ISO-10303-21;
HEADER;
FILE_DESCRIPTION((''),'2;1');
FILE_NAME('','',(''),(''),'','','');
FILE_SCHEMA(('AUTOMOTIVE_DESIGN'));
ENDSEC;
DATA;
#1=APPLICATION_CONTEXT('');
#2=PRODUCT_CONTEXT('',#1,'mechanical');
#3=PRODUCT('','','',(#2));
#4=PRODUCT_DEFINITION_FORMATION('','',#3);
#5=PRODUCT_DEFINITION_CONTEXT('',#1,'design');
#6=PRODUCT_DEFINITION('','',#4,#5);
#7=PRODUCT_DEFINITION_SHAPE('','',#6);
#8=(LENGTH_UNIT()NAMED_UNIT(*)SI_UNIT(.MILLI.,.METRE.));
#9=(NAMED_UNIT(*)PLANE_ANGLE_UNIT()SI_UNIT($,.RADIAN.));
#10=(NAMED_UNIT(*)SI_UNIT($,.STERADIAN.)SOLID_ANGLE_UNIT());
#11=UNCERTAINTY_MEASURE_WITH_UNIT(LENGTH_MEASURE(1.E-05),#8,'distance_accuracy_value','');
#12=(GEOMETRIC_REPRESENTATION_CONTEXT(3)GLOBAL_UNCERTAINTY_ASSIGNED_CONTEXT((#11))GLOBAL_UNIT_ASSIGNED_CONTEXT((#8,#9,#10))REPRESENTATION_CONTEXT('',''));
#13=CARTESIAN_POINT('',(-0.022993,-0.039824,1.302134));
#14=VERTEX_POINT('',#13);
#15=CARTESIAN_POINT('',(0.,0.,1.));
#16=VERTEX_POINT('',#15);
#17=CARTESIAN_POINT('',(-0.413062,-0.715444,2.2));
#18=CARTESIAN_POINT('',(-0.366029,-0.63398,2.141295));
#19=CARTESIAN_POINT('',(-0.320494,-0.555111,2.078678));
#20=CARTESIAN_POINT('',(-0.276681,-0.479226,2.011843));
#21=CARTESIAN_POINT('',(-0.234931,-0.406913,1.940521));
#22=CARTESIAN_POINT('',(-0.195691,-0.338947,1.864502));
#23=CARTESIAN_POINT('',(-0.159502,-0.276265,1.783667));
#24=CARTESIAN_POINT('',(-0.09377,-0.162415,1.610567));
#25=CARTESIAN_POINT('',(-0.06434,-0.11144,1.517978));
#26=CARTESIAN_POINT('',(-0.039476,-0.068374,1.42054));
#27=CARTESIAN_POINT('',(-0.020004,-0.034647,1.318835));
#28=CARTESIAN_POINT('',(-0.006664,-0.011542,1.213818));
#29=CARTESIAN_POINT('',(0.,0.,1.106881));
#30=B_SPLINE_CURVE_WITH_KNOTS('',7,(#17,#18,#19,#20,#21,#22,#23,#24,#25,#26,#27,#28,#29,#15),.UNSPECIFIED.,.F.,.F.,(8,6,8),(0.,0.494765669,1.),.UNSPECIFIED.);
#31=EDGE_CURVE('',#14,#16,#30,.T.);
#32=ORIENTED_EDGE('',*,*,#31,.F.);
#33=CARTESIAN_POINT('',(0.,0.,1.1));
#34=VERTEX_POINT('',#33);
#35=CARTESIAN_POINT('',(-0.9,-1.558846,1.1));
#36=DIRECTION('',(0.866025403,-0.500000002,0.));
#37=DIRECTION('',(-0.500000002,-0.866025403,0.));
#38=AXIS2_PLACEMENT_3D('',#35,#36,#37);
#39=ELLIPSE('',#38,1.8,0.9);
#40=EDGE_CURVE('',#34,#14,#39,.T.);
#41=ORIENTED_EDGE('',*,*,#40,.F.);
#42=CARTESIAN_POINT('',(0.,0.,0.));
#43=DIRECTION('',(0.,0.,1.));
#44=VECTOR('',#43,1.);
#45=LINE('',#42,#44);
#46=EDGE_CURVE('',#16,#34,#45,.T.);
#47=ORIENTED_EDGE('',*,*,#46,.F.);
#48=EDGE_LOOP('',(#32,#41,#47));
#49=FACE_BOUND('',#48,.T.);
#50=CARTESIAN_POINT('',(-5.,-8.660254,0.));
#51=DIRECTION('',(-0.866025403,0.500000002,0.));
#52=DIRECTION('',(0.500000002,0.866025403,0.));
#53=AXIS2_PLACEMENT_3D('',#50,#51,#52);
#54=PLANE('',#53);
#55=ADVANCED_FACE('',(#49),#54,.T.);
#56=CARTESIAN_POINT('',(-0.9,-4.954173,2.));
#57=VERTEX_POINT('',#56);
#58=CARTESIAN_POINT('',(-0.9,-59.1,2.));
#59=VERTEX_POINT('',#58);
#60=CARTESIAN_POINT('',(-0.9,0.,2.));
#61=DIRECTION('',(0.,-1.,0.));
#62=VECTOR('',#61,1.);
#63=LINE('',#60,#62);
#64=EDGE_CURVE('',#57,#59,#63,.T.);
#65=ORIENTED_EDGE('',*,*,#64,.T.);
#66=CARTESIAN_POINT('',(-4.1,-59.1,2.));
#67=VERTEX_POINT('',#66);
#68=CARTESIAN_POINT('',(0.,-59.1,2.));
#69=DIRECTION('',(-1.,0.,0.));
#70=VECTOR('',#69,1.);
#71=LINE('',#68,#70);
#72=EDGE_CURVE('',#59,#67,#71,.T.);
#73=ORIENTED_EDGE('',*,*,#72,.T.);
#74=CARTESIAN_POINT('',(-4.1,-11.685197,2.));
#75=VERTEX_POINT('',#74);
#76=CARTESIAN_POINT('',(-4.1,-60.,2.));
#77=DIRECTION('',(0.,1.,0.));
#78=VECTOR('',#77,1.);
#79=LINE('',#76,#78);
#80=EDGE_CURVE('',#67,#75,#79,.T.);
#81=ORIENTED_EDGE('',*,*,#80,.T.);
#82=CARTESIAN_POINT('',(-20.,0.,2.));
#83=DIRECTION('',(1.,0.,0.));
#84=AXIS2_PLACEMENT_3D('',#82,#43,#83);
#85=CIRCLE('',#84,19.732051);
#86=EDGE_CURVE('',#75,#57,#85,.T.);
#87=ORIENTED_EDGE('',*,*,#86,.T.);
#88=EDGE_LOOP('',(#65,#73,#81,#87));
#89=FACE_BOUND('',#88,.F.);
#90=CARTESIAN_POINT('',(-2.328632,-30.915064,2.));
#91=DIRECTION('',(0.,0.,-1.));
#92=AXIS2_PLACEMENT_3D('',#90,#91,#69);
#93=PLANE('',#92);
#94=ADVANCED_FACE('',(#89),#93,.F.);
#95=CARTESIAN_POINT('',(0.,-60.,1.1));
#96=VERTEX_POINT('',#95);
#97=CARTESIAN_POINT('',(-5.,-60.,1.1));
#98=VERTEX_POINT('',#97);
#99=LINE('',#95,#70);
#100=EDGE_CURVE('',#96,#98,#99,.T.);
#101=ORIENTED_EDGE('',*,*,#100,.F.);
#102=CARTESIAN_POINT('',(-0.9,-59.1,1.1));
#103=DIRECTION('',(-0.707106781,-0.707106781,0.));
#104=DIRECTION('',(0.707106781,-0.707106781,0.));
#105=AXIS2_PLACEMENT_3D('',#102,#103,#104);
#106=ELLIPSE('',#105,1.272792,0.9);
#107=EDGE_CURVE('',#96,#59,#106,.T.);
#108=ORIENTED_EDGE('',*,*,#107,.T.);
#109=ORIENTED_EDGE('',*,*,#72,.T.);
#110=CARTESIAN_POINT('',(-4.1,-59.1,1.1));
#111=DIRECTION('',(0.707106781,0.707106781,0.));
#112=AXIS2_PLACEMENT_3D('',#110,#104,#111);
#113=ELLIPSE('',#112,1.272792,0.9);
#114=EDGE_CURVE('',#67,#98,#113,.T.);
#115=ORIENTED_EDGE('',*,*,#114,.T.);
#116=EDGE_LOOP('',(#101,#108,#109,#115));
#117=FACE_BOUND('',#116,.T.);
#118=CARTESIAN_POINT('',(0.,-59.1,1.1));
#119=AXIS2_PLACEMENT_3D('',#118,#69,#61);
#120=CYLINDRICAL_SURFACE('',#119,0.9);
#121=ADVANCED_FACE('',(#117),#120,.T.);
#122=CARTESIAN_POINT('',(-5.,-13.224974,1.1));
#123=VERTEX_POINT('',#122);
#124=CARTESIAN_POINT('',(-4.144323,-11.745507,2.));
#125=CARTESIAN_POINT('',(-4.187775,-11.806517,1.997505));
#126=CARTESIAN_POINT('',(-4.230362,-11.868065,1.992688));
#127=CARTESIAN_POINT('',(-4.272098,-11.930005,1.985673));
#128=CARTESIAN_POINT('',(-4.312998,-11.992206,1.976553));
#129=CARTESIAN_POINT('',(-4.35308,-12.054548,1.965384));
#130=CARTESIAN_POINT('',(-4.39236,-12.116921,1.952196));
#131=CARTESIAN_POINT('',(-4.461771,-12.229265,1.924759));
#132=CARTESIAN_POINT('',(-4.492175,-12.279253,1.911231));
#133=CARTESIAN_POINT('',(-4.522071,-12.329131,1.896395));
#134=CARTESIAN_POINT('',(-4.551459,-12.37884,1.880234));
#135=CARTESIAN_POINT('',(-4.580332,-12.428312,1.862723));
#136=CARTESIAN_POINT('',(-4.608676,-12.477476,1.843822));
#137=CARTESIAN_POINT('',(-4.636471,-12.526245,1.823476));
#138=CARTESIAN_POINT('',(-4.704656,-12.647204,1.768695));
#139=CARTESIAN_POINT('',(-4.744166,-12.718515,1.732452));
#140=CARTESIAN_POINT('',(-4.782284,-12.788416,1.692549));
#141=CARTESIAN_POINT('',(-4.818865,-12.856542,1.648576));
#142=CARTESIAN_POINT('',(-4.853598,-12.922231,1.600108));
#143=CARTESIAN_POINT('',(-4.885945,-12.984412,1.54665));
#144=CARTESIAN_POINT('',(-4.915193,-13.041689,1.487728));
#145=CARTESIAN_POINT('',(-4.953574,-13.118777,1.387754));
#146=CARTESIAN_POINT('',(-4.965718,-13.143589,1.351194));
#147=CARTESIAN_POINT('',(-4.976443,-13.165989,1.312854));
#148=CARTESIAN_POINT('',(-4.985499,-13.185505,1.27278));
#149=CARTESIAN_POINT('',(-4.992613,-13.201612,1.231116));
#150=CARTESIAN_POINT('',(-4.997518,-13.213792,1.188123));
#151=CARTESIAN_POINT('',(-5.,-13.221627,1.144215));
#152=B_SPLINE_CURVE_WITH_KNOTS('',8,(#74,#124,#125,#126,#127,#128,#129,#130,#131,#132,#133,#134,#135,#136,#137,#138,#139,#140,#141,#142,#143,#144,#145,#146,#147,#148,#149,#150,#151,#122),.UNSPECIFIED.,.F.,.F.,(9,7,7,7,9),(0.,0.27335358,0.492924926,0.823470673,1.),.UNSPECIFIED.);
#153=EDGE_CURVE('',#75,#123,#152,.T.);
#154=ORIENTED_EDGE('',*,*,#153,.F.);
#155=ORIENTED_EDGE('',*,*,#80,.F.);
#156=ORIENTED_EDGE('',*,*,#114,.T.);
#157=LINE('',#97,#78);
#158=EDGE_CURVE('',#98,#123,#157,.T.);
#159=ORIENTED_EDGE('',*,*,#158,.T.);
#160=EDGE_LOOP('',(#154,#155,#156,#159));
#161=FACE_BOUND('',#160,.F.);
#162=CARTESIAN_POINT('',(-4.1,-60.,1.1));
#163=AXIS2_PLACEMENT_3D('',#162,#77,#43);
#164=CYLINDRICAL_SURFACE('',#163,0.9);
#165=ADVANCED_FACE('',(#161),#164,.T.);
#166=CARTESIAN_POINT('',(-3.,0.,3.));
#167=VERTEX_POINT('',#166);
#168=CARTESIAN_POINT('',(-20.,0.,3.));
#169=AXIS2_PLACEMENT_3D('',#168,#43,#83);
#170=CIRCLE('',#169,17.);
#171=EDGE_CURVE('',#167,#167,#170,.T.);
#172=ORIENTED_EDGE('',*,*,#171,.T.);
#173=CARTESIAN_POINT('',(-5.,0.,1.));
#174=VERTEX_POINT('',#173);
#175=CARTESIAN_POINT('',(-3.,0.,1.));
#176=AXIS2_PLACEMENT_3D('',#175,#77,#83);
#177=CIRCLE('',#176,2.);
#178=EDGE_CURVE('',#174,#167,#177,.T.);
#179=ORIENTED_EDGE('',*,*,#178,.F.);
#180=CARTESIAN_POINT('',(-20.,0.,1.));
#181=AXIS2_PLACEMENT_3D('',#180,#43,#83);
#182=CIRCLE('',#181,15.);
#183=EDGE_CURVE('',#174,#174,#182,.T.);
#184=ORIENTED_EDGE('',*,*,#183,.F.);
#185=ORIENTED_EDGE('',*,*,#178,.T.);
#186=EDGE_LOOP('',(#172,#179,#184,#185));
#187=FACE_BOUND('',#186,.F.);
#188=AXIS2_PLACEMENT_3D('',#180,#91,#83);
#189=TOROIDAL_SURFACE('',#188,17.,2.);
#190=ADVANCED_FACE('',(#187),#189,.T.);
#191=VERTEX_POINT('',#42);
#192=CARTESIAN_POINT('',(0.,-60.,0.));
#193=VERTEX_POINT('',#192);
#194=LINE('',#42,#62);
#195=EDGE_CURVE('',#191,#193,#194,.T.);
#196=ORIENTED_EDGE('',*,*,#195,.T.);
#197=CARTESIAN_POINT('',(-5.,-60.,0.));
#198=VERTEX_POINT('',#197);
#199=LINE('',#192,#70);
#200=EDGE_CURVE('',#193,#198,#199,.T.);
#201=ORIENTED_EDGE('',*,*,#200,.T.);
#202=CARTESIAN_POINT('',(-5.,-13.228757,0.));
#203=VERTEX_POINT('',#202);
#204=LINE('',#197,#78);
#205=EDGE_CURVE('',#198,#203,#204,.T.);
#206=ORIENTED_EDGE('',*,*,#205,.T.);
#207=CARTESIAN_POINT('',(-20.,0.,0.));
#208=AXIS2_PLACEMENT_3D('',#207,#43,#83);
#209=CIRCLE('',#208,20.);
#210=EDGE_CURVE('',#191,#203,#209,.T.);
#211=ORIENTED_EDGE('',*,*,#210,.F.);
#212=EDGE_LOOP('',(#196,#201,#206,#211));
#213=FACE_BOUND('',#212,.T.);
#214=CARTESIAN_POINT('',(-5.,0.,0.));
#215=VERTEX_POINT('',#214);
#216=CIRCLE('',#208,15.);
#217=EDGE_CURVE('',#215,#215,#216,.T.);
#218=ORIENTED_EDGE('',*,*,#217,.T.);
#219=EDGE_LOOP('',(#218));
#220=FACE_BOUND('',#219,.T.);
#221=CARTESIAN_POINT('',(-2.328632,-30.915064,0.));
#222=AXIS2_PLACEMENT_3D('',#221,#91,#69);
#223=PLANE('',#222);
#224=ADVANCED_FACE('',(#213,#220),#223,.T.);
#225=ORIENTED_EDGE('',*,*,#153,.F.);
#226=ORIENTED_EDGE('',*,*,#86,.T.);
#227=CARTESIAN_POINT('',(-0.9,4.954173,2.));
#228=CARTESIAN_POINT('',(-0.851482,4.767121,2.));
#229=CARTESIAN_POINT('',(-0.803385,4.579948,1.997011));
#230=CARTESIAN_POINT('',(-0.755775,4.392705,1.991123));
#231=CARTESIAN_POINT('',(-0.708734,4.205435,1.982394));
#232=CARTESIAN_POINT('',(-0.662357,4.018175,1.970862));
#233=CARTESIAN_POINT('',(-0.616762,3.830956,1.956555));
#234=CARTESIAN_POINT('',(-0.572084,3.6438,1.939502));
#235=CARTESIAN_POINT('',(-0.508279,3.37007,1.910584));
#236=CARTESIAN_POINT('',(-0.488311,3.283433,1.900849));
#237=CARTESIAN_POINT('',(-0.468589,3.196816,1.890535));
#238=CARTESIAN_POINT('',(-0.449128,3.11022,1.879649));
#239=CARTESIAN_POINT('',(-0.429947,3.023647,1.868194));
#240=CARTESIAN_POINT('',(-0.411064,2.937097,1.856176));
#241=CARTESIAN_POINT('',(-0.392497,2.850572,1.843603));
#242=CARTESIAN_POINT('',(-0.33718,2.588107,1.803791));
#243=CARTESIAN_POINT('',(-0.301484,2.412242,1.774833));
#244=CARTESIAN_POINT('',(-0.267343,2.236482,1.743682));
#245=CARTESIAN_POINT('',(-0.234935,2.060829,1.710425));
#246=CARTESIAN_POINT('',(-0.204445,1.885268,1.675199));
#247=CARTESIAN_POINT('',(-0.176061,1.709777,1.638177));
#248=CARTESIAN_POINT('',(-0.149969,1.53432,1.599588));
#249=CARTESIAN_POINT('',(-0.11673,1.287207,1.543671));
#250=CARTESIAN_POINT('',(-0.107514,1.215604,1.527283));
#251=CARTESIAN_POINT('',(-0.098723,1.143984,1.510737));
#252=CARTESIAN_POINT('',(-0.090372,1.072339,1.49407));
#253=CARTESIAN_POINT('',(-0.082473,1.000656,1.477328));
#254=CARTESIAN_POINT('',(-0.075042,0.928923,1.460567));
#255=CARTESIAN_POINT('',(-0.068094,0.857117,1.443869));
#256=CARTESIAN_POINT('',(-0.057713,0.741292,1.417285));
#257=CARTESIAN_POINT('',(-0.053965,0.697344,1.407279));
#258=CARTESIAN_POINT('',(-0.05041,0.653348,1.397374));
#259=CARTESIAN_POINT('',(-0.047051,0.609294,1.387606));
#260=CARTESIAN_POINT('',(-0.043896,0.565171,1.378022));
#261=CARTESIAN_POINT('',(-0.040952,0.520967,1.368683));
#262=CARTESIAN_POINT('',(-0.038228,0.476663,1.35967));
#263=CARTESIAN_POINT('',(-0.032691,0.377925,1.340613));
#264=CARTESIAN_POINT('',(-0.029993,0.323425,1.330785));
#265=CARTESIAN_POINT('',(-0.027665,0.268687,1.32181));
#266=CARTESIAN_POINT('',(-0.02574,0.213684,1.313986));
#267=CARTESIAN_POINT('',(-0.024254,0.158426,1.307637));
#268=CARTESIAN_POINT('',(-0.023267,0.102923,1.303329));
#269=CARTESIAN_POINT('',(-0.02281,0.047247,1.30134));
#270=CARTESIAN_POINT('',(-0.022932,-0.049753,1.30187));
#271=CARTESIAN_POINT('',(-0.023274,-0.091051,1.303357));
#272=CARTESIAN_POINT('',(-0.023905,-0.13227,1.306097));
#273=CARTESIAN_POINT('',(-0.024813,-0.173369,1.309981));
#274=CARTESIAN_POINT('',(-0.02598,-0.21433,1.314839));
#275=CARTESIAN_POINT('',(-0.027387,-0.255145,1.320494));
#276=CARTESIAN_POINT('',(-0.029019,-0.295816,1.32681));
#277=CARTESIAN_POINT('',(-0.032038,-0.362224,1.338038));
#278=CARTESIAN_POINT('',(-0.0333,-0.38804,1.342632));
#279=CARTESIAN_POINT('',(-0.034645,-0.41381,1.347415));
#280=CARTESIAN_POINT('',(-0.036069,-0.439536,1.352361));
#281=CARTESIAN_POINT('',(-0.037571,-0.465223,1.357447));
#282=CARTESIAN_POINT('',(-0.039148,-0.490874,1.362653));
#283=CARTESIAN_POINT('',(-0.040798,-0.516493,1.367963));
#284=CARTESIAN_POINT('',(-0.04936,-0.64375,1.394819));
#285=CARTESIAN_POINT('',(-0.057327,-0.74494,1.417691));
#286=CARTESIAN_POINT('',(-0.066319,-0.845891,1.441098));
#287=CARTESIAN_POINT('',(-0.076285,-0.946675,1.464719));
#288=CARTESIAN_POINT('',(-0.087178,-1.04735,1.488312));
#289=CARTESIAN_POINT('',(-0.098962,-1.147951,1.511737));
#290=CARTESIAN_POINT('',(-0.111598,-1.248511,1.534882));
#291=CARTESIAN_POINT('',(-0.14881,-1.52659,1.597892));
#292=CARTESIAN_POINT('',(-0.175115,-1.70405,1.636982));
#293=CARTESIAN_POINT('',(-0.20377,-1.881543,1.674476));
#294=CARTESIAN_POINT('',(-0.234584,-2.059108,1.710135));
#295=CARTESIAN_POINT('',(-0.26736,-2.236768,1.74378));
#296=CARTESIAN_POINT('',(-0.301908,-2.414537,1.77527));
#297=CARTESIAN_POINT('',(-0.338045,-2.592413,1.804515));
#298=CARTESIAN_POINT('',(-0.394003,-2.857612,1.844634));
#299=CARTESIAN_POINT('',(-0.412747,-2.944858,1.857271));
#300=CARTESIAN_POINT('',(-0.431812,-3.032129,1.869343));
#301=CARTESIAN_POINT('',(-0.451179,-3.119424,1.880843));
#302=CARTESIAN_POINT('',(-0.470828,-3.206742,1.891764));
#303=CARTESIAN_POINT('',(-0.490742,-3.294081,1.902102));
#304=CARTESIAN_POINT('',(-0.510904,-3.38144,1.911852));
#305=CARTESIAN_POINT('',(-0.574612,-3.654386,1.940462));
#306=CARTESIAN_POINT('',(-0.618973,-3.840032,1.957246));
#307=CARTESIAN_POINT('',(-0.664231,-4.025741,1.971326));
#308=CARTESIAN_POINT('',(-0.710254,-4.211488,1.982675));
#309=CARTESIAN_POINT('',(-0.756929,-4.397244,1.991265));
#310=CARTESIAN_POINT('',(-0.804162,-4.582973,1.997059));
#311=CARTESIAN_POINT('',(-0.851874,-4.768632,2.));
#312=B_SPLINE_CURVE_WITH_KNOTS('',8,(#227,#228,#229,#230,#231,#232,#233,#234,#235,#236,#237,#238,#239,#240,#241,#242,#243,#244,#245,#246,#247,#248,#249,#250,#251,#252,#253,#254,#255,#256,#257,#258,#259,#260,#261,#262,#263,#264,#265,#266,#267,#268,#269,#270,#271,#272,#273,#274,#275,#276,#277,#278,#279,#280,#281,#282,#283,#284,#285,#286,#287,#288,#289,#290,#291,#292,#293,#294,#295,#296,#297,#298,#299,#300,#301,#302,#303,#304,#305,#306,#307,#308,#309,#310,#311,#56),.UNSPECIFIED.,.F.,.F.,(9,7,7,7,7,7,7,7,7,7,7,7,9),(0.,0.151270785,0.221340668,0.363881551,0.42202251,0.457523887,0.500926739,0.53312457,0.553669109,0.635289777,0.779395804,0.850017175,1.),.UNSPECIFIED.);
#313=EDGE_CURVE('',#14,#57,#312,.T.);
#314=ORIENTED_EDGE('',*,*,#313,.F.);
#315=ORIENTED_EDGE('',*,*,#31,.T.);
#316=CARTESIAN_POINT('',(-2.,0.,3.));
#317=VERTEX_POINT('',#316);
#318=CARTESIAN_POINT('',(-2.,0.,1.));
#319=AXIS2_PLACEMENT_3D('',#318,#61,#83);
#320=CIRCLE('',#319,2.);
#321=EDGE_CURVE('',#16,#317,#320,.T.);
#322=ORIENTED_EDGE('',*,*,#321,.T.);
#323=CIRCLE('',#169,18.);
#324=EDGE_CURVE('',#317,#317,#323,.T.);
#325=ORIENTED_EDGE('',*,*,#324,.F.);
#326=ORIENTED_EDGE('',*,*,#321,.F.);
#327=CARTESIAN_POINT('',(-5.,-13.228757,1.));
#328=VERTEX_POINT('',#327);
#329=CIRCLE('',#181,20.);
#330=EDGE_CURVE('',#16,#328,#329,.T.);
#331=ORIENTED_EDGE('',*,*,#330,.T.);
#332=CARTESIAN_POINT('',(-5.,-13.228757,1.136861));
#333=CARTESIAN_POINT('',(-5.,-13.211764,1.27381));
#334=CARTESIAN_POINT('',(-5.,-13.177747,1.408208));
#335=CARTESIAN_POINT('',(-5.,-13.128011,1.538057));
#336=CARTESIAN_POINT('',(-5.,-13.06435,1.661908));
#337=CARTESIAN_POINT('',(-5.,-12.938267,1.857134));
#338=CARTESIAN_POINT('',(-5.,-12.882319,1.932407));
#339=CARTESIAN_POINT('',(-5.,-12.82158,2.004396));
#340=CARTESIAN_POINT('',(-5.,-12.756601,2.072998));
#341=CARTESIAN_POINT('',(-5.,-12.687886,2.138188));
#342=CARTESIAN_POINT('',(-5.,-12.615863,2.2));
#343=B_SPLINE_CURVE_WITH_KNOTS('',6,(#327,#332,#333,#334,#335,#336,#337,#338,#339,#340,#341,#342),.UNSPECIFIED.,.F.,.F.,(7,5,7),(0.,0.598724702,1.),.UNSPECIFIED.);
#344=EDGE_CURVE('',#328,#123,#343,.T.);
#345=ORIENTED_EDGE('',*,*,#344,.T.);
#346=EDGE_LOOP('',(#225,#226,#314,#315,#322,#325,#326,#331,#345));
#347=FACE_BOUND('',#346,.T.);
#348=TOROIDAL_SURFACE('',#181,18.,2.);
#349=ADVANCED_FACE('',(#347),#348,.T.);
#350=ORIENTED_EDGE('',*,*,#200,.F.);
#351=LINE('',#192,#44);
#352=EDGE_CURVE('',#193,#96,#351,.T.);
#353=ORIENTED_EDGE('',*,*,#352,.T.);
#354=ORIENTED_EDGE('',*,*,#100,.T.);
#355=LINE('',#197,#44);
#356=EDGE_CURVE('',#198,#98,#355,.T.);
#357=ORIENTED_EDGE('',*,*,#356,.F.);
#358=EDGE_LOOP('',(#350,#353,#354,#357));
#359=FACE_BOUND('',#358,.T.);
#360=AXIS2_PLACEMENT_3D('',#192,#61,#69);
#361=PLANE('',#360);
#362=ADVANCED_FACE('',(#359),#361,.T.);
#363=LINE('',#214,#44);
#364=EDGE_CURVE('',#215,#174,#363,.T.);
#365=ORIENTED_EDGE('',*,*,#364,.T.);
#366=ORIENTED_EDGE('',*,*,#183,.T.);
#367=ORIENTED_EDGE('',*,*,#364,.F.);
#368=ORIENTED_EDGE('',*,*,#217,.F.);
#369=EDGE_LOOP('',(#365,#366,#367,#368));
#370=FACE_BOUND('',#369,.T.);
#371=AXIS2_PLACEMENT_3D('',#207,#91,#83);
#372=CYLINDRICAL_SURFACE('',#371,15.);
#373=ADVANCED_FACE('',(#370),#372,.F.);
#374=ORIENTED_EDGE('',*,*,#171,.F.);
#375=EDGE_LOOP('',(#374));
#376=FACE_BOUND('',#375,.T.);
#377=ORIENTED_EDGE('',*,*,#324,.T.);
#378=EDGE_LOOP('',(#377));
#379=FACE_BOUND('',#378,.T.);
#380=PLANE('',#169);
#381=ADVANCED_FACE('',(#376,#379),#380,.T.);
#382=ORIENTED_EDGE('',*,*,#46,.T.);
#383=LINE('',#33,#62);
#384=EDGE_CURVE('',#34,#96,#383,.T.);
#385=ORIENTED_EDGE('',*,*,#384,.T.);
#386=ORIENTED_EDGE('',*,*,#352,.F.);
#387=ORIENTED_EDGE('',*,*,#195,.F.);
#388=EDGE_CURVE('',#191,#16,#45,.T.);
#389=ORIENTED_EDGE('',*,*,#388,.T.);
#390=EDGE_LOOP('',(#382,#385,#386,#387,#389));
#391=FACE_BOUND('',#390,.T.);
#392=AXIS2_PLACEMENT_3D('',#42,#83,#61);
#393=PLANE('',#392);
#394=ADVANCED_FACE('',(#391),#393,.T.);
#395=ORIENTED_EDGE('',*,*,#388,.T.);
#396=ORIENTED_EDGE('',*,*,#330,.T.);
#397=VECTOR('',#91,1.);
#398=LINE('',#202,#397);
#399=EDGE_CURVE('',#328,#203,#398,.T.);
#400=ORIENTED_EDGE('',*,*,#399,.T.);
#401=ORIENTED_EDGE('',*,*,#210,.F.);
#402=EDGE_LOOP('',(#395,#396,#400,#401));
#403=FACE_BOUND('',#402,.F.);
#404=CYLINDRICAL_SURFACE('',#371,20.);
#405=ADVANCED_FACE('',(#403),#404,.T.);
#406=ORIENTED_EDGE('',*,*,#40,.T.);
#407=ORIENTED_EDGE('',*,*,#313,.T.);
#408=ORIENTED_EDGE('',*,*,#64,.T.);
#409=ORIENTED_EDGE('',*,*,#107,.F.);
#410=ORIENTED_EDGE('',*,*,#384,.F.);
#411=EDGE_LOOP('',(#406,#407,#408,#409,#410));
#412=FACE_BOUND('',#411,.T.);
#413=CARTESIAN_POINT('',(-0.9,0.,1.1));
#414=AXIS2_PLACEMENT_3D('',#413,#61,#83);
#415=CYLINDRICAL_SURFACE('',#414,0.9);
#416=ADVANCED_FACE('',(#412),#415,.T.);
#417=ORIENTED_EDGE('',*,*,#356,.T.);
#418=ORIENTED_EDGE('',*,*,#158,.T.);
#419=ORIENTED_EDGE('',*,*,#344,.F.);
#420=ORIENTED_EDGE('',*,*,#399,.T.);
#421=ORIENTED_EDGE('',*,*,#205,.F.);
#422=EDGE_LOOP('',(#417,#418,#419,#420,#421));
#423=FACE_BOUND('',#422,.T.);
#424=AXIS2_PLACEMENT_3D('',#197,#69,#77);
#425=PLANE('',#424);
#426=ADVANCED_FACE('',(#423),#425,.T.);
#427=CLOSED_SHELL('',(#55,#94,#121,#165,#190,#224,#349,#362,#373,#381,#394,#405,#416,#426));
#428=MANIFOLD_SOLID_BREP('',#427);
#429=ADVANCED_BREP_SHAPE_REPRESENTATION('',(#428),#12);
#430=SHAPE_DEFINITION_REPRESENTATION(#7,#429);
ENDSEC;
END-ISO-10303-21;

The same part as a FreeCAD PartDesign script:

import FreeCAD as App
import Part
import Sketcher

V = App.Vector
Q = App.Units.Quantity


def edges_at(feature, points):
    """Names of the edges that pass closest to the given points."""
    edges = feature.Shape.Edges
    near = lambda p: min(range(len(edges)), key=lambda i: edges[i].distToShape(Part.Vertex(*p))[0])
    return sorted({f"Edge{near(p) + 1}" for p in points})


def add_polygon(sketch, points):
    """Adds a closed chain of lines whose ends are joined by coincident constraints."""
    first, n = sketch.GeometryCount, len(points)
    for a, b in zip(points, points[1:] + points[:1]):
        sketch.addGeometry(Part.LineSegment(App.Vector(*a, 0), App.Vector(*b, 0)), False)
    for i in range(n):
        sketch.addConstraint(Sketcher.Constraint("Coincident", first + i, 2, first + (i + 1) % n, 1))

doc = App.newDocument("Part")
body = doc.addObject("PartDesign::Body", "Body")

# Sketch on XY plane
sketch1 = body.newObject("Sketcher::SketchObject", "Sketch")
sketch1.AttachmentSupport = (doc.getObject("XY_Plane"), [""])
sketch1.MapMode = "FlatFace"
sketch1.addGeometry([
    Part.Circle(V(-20, 0, 0), V(0, 0, 1), 20),
    Part.Circle(V(-20, 0, 0), V(0, 0, 1), 15),
], False)
sketch1.addConstraint([
    Sketcher.Constraint("Coincident", 1, 3, 0, 3),
    Sketcher.Constraint("PointOnObject", 0, 3, -1),
    Sketcher.Constraint("Diameter", 0, Q("40 mm")),
    Sketcher.Constraint("Diameter", 1, Q("30 mm")),
    Sketcher.Constraint("DistanceX", 0, 3, -1, 1, Q("20 mm")),
])
pad1 = body.newObject("PartDesign::Pad", "Pad")
pad1.Profile = sketch1
pad1.Length = 3
doc.recompute()

fillet = body.newObject("PartDesign::Fillet", "Fillet")
fillet.Base = (pad1, edges_at(pad1, [(-40, 0, 3), (-35, 0, 3)]))
fillet.Radius = 2

# Sketch on XY plane
sketch2 = body.newObject("Sketcher::SketchObject", "Sketch001")
sketch2.AttachmentSupport = (doc.getObject("XY_Plane"), [""])
sketch2.MapMode = "FlatFace"
add_polygon(sketch2, [(0, -60), (0, 0), (-5, -9), (-5, -60)])  # lines 0-3
sketch2.addConstraint([
    Sketcher.Constraint("Vertical", 0),
    Sketcher.Constraint("Vertical", 2),
    Sketcher.Constraint("Horizontal", 3),
    Sketcher.Constraint("Coincident", 0, 2, -1, 1),
    Sketcher.Constraint("DistanceX", 3, 1, 3, 2, Q("5 mm")),
    Sketcher.Constraint("DistanceY", 0, 1, 0, 2, Q("60 mm")),
    Sketcher.Constraint("Angle", 1, Q("-120 deg")),
])
pad2 = body.newObject("PartDesign::Pad", "Pad001")
pad2.Profile = sketch2
pad2.Length = 2
doc.recompute()

fillet2 = body.newObject("PartDesign::Fillet", "Fillet001")
fillet2.Base = (pad2, edges_at(pad2, [(-5, -36.41, 2), (0, -30, 2), (-2.5, -60, 2)]))
fillet2.Radius = 0.9

doc.recompute()
